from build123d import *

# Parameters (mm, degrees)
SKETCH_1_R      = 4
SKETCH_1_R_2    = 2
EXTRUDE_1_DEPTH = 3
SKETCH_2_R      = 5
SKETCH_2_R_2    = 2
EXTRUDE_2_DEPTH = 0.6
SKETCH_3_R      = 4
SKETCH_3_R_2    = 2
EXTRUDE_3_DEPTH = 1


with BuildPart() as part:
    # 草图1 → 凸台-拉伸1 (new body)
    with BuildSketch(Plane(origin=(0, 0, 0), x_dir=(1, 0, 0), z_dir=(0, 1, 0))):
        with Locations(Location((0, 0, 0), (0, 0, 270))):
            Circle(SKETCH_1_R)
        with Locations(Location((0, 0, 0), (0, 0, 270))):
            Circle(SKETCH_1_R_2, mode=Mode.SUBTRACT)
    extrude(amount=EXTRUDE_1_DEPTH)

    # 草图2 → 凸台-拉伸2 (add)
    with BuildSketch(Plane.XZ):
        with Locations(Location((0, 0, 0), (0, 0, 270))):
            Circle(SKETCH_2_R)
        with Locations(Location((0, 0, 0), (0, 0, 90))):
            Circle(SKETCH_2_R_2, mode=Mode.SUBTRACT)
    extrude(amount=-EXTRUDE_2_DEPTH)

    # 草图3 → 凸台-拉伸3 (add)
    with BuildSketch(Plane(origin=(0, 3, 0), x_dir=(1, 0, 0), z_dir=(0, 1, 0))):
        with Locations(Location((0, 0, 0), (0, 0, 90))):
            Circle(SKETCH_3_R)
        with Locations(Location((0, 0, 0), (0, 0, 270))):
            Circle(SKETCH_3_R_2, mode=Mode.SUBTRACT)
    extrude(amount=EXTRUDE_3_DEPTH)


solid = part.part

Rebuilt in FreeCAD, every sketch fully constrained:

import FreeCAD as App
import Part
import Sketcher

V = App.Vector
Q = App.Units.Quantity

doc = App.newDocument("Part")
body = doc.addObject("PartDesign::Body", "Body")

# Sketch on XZ plane
sketch1 = body.newObject("Sketcher::SketchObject", "Sketch")
sketch1.AttachmentSupport = (doc.getObject("XZ_Plane"), [""])
sketch1.MapMode = "FlatFace"
sketch1.addGeometry(Part.Circle(V(0, 0, 0), V(0, 0, 1), 4), False)
sketch1.addGeometry(Part.Circle(V(0, 0, 0), V(0, 0, 1), 2), False)
sketch1.addConstraint(Sketcher.Constraint("Coincident", 0, 3, -1, 1))
sketch1.addConstraint(Sketcher.Constraint("Coincident", 1, 3, -1, 1))
sketch1.addConstraint(Sketcher.Constraint("Diameter", 0, Q("8 mm")))
sketch1.addConstraint(Sketcher.Constraint("Diameter", 1, Q("4 mm")))
pad1 = body.newObject("PartDesign::Pad", "Pad")
pad1.Profile = sketch1
pad1.Length = 3
pad1.Reversed = True

# Sketch on XZ plane
sketch2 = body.newObject("Sketcher::SketchObject", "Sketch001")
sketch2.AttachmentSupport = (doc.getObject("XZ_Plane"), [""])
sketch2.MapMode = "FlatFace"
sketch2.addGeometry(Part.Circle(V(0, 0, 0), V(0, 0, 1), 5), False)
sketch2.addGeometry(Part.Circle(V(0, 0, 0), V(0, 0, 1), 2), False)
sketch2.addConstraint(Sketcher.Constraint("Coincident", 0, 3, -1, 1))
sketch2.addConstraint(Sketcher.Constraint("Coincident", 1, 3, -1, 1))
sketch2.addConstraint(Sketcher.Constraint("Diameter", 0, Q("10 mm")))
sketch2.addConstraint(Sketcher.Constraint("Diameter", 1, Q("4 mm")))
pad2 = body.newObject("PartDesign::Pad", "Pad001")
pad2.Profile = sketch2
pad2.Length = 0.6
pad2.Reversed = True

# Sketch on XZ plane
sketch3 = body.newObject("Sketcher::SketchObject", "Sketch002")
sketch3.AttachmentSupport = (doc.getObject("XZ_Plane"), [""])
sketch3.MapMode = "FlatFace"
sketch3.AttachmentOffset = App.Placement(V(0, 0, -3), App.Rotation())
sketch3.addGeometry(Part.Circle(V(0, 0, 0), V(0, 0, 1), 4), False)
sketch3.addGeometry(Part.Circle(V(0, 0, 0), V(0, 0, 1), 2), False)
sketch3.addConstraint(Sketcher.Constraint("Coincident", 0, 3, -1, 1))
sketch3.addConstraint(Sketcher.Constraint("Coincident", 1, 3, -1, 1))
sketch3.addConstraint(Sketcher.Constraint("Diameter", 0, Q("8 mm")))
sketch3.addConstraint(Sketcher.Constraint("Diameter", 1, Q("4 mm")))
pad3 = body.newObject("PartDesign::Pad", "Pad002")
pad3.Profile = sketch3
pad3.Length = 1
pad3.Reversed = True

doc.recompute()
